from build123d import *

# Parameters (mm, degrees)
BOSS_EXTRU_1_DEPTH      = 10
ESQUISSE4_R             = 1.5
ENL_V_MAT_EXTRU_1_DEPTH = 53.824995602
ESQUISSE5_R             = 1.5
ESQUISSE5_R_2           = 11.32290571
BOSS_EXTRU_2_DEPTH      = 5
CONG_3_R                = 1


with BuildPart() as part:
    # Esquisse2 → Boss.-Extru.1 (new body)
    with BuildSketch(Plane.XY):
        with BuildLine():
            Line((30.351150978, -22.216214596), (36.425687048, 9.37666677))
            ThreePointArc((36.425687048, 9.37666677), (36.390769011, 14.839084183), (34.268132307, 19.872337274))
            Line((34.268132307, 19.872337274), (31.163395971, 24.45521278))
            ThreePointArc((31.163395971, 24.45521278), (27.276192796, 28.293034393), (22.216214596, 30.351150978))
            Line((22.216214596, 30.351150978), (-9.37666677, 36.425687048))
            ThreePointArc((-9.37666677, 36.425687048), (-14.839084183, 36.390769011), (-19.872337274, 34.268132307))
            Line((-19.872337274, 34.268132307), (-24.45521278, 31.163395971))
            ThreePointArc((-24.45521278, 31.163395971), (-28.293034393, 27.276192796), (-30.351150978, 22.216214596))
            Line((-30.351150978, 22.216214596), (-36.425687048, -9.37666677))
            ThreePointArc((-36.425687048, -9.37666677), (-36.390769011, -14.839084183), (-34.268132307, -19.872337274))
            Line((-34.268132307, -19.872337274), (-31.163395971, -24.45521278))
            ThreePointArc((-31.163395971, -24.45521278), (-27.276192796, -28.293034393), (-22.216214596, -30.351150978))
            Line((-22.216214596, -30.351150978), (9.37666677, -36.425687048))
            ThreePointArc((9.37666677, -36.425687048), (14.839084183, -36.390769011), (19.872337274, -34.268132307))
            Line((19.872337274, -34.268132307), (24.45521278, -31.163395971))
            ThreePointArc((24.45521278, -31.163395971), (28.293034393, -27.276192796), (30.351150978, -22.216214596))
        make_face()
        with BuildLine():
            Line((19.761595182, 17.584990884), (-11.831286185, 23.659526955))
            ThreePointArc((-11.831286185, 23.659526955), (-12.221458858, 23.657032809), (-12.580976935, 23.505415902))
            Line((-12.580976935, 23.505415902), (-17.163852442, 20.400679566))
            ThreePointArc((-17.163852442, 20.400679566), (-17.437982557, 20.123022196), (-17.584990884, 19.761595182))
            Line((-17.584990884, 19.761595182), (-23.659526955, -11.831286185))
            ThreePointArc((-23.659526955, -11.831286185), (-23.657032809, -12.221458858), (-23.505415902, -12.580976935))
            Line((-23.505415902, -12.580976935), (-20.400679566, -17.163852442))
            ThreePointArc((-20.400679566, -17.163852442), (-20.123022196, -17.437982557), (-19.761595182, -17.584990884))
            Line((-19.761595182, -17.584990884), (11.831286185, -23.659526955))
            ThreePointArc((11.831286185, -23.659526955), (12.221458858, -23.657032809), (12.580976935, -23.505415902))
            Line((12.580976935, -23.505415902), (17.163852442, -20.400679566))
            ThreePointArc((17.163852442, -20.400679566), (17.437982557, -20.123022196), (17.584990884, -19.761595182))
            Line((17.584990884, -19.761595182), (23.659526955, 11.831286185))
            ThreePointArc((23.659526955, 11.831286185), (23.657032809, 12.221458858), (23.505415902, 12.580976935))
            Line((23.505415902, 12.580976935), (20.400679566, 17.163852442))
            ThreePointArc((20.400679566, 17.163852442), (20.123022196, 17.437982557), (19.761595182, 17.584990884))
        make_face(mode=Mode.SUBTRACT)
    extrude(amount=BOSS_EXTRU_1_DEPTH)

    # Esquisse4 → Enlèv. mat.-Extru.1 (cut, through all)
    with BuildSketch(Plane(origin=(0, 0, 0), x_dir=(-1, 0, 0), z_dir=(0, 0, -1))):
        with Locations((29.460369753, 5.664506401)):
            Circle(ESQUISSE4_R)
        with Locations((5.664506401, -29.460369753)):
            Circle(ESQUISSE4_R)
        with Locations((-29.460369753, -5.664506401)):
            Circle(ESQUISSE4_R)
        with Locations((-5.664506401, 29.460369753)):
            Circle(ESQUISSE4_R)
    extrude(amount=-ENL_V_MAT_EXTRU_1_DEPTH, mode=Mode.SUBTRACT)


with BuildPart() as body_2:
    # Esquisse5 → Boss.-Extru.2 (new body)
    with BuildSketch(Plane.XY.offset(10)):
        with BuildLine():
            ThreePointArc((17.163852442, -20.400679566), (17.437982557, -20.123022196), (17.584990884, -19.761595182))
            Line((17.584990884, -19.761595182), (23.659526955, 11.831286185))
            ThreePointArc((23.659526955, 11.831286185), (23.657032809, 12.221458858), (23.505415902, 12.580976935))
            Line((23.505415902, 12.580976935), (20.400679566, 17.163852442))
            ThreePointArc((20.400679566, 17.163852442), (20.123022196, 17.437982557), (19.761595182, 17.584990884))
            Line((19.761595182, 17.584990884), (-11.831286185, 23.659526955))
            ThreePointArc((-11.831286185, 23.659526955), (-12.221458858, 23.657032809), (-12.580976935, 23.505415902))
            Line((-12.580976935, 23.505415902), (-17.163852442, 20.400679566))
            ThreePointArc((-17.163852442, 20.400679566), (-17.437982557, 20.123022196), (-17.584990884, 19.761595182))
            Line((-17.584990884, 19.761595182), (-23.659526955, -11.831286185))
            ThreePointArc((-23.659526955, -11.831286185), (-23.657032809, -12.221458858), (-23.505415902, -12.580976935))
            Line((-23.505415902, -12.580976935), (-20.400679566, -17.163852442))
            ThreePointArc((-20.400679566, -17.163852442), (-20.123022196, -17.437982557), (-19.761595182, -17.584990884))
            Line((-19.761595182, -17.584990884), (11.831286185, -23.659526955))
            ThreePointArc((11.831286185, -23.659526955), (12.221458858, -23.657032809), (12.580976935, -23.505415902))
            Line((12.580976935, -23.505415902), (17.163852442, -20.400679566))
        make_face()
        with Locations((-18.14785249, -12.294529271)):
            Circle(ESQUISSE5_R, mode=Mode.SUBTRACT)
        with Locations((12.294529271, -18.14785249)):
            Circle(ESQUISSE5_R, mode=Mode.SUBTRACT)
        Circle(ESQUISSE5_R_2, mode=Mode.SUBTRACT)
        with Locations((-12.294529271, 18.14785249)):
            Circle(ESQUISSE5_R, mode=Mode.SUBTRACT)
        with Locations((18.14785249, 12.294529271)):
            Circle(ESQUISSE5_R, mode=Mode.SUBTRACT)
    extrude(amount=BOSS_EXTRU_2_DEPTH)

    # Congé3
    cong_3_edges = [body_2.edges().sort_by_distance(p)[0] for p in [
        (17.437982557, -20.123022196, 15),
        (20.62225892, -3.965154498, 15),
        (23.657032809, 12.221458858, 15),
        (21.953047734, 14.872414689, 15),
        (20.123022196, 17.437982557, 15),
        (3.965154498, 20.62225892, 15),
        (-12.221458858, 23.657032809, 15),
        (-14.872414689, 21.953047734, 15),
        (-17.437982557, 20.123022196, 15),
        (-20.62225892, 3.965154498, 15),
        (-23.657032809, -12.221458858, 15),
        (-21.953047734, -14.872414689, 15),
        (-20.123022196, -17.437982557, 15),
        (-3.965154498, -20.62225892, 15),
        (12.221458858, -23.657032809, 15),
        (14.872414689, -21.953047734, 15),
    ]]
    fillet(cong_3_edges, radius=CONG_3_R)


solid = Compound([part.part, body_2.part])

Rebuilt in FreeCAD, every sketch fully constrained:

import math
import FreeCAD as App
import Part
import Sketcher
Q = App.Units.Quantity


def edges_at(feature, points):
    """Names of the edges that pass closest to the given points."""
    edges = feature.Shape.Edges
    near = lambda p: min(range(len(edges)), key=lambda i: edges[i].distToShape(Part.Vertex(*p))[0])
    return sorted({f"Edge{near(p) + 1}" for p in points})

doc = App.newDocument("Part")
body = doc.addObject("PartDesign::Body", "Body")

# Sketch on XY plane
sketch1 = doc.addObject("Sketcher::SketchObject", "Sketch")
body.addObject(sketch1)
sketch1.AttachmentSupport = (doc.XY_Plane, [""])
sketch1.MapMode = "FlatFace"
sketch1.addGeometry(Part.LineSegment(App.Vector(30.4, -22.2, 0), App.Vector(36.4, 9.4, 0)), False)
sketch1.addGeometry(Part.ArcOfCircle(Part.Circle(App.Vector(22.7, 12, 0), App.Vector(0, 0, 1), 14), math.radians(-11), math.radians(34)), False)
sketch1.addGeometry(Part.LineSegment(App.Vector(34.3, 19.9, 0), App.Vector(31.2, 24.5, 0)), False)
sketch1.addGeometry(Part.ArcOfCircle(Part.Circle(App.Vector(19.6, 16.6, 0), App.Vector(0, 0, 1), 14), math.radians(34), math.radians(79)), False)
sketch1.addGeometry(Part.LineSegment(App.Vector(22.2, 30.4, 0), App.Vector(-9.4, 36.4, 0)), False)
sketch1.addGeometry(Part.ArcOfCircle(Part.Circle(App.Vector(-12, 22.7, 0), App.Vector(0, 0, 1), 14), math.radians(79), math.radians(124)), False)
sketch1.addGeometry(Part.LineSegment(App.Vector(-19.9, 34.3, 0), App.Vector(-24.5, 31.2, 0)), False)
sketch1.addGeometry(Part.ArcOfCircle(Part.Circle(App.Vector(-16.6, 19.6, 0), App.Vector(0, 0, 1), 14), math.radians(124), math.radians(169)), False)
sketch1.addGeometry(Part.LineSegment(App.Vector(-30.4, 22.2, 0), App.Vector(-36.4, -9.4, 0)), False)
sketch1.addGeometry(Part.ArcOfCircle(Part.Circle(App.Vector(-22.7, -12, 0), App.Vector(0, 0, 1), 14), math.radians(169), math.radians(214)), False)
sketch1.addGeometry(Part.LineSegment(App.Vector(-34.3, -19.9, 0), App.Vector(-31.2, -24.5, 0)), False)
sketch1.addGeometry(Part.ArcOfCircle(Part.Circle(App.Vector(-19.6, -16.6, 0), App.Vector(0, 0, 1), 14), math.radians(-146), math.radians(-101)), False)
sketch1.addGeometry(Part.LineSegment(App.Vector(-22.2, -30.4, 0), App.Vector(9.4, -36.4, 0)), False)
sketch1.addGeometry(Part.ArcOfCircle(Part.Circle(App.Vector(12, -22.7, 0), App.Vector(0, 0, 1), 14), math.radians(-101), math.radians(-56)), False)
sketch1.addGeometry(Part.LineSegment(App.Vector(19.9, -34.3, 0), App.Vector(24.5, -31.2, 0)), False)
sketch1.addGeometry(Part.ArcOfCircle(Part.Circle(App.Vector(16.6, -19.6, 0), App.Vector(0, 0, 1), 14), math.radians(-56), math.radians(-11)), False)
sketch1.addGeometry(Part.LineSegment(App.Vector(-11.8, 23.7, 0), App.Vector(19.8, 17.6, 0)), False)
sketch1.addGeometry(Part.ArcOfCircle(Part.Circle(App.Vector(19.6, 16.6, 0), App.Vector(0, 0, 1), 1), math.radians(34), math.radians(79)), False)
sketch1.addGeometry(Part.LineSegment(App.Vector(20.4, 17.2, 0), App.Vector(23.5, 12.6, 0)), False)
sketch1.addGeometry(Part.ArcOfCircle(Part.Circle(App.Vector(22.7, 12, 0), App.Vector(0, 0, 1), 1), math.radians(-11), math.radians(34)), False)
sketch1.addGeometry(Part.LineSegment(App.Vector(23.7, 11.8, 0), App.Vector(17.6, -19.8, 0)), False)
sketch1.addGeometry(Part.ArcOfCircle(Part.Circle(App.Vector(16.6, -19.6, 0), App.Vector(0, 0, 1), 1), math.radians(-56), math.radians(-11)), False)
sketch1.addGeometry(Part.LineSegment(App.Vector(17.2, -20.4, 0), App.Vector(12.6, -23.5, 0)), False)
sketch1.addGeometry(Part.ArcOfCircle(Part.Circle(App.Vector(12, -22.7, 0), App.Vector(0, 0, 1), 1), math.radians(-101), math.radians(-56)), False)
sketch1.addGeometry(Part.LineSegment(App.Vector(11.8, -23.7, 0), App.Vector(-19.8, -17.6, 0)), False)
sketch1.addGeometry(Part.ArcOfCircle(Part.Circle(App.Vector(-19.6, -16.6, 0), App.Vector(0, 0, 1), 1), math.radians(-146), math.radians(-101)), False)
sketch1.addGeometry(Part.LineSegment(App.Vector(-20.4, -17.2, 0), App.Vector(-23.5, -12.6, 0)), False)
sketch1.addGeometry(Part.ArcOfCircle(Part.Circle(App.Vector(-22.7, -12, 0), App.Vector(0, 0, 1), 1), math.radians(169), math.radians(214)), False)
sketch1.addGeometry(Part.LineSegment(App.Vector(-23.7, -11.8, 0), App.Vector(-17.6, 19.8, 0)), False)
sketch1.addGeometry(Part.ArcOfCircle(Part.Circle(App.Vector(-16.6, 19.6, 0), App.Vector(0, 0, 1), 1), math.radians(124), math.radians(169)), False)
sketch1.addGeometry(Part.LineSegment(App.Vector(-17.2, 20.4, 0), App.Vector(-12.6, 23.5, 0)), False)
sketch1.addGeometry(Part.ArcOfCircle(Part.Circle(App.Vector(-12, 22.7, 0), App.Vector(0, 0, 1), 1), math.radians(79), math.radians(124)), False)
sketch1.addConstraint(Sketcher.Constraint("Tangent", 0, 2, 1, 1))
sketch1.addConstraint(Sketcher.Constraint("Tangent", 1, 2, 2, 1))
sketch1.addConstraint(Sketcher.Constraint("Tangent", 2, 2, 3, 1))
sketch1.addConstraint(Sketcher.Constraint("Tangent", 3, 2, 4, 1))
sketch1.addConstraint(Sketcher.Constraint("Tangent", 4, 2, 5, 1))
sketch1.addConstraint(Sketcher.Constraint("Tangent", 5, 2, 6, 1))
sketch1.addConstraint(Sketcher.Constraint("Tangent", 6, 2, 7, 1))
sketch1.addConstraint(Sketcher.Constraint("Tangent", 7, 2, 8, 1))
sketch1.addConstraint(Sketcher.Constraint("Tangent", 8, 2, 9, 1))
sketch1.addConstraint(Sketcher.Constraint("Tangent", 9, 2, 10, 1))
sketch1.addConstraint(Sketcher.Constraint("Tangent", 10, 2, 11, 1))
sketch1.addConstraint(Sketcher.Constraint("Tangent", 11, 2, 12, 1))
sketch1.addConstraint(Sketcher.Constraint("Tangent", 12, 2, 13, 1))
sketch1.addConstraint(Sketcher.Constraint("Tangent", 13, 2, 14, 1))
sketch1.addConstraint(Sketcher.Constraint("Tangent", 14, 2, 15, 1))
sketch1.addConstraint(Sketcher.Constraint("Tangent", 15, 2, 0, 1))
sketch1.addConstraint(Sketcher.Constraint("Tangent", 16, 2, 17, 2))
sketch1.addConstraint(Sketcher.Constraint("Tangent", 17, 1, 18, 1))
sketch1.addConstraint(Sketcher.Constraint("Tangent", 18, 2, 19, 2))
sketch1.addConstraint(Sketcher.Constraint("Tangent", 19, 1, 20, 1))
sketch1.addConstraint(Sketcher.Constraint("Tangent", 20, 2, 21, 2))
sketch1.addConstraint(Sketcher.Constraint("Tangent", 21, 1, 22, 1))
sketch1.addConstraint(Sketcher.Constraint("Tangent", 22, 2, 23, 2))
sketch1.addConstraint(Sketcher.Constraint("Tangent", 23, 1, 24, 1))
sketch1.addConstraint(Sketcher.Constraint("Tangent", 24, 2, 25, 2))
sketch1.addConstraint(Sketcher.Constraint("Tangent", 25, 1, 26, 1))
sketch1.addConstraint(Sketcher.Constraint("Tangent", 26, 2, 27, 2))
sketch1.addConstraint(Sketcher.Constraint("Tangent", 27, 1, 28, 1))
sketch1.addConstraint(Sketcher.Constraint("Tangent", 28, 2, 29, 2))
sketch1.addConstraint(Sketcher.Constraint("Tangent", 29, 1, 30, 1))
sketch1.addConstraint(Sketcher.Constraint("Tangent", 30, 2, 31, 2))
sketch1.addConstraint(Sketcher.Constraint("Tangent", 31, 1, 16, 1))
sketch1.addConstraint(Sketcher.Constraint("Coincident", 17, 3, 3, 3))
sketch1.addConstraint(Sketcher.Constraint("Coincident", 19, 3, 1, 3))
sketch1.addConstraint(Sketcher.Constraint("Coincident", 21, 3, 15, 3))
sketch1.addConstraint(Sketcher.Constraint("Coincident", 23, 3, 13, 3))
sketch1.addConstraint(Sketcher.Constraint("Coincident", 25, 3, 11, 3))
sketch1.addConstraint(Sketcher.Constraint("Coincident", 27, 3, 9, 3))
sketch1.addConstraint(Sketcher.Constraint("Coincident", 29, 3, 7, 3))
sketch1.addConstraint(Sketcher.Constraint("Coincident", 31, 3, 5, 3))
sketch1.addConstraint(Sketcher.Constraint("Equal", 1, 3))
sketch1.addConstraint(Sketcher.Constraint("Equal", 3, 5))
sketch1.addConstraint(Sketcher.Constraint("Equal", 5, 7))
sketch1.addConstraint(Sketcher.Constraint("Equal", 7, 9))
sketch1.addConstraint(Sketcher.Constraint("Equal", 9, 11))
sketch1.addConstraint(Sketcher.Constraint("Equal", 11, 13))
sketch1.addConstraint(Sketcher.Constraint("Equal", 13, 15))
sketch1.addConstraint(Sketcher.Constraint("Equal", 17, 19))
sketch1.addConstraint(Sketcher.Constraint("Equal", 19, 21))
sketch1.addConstraint(Sketcher.Constraint("Equal", 21, 23))
sketch1.addConstraint(Sketcher.Constraint("Equal", 23, 25))
sketch1.addConstraint(Sketcher.Constraint("Equal", 25, 27))
sketch1.addConstraint(Sketcher.Constraint("Equal", 27, 29))
sketch1.addConstraint(Sketcher.Constraint("Equal", 29, 31))
sketch1.addConstraint(Sketcher.Constraint("Symmetric", 1, 3, 9, 3, -1, 1))
sketch1.addConstraint(Sketcher.Constraint("Symmetric", 3, 3, 11, 3, -1, 1))
sketch1.addConstraint(Sketcher.Constraint("Symmetric", 5, 3, 13, 3, -1, 1))
sketch1.addConstraint(Sketcher.Constraint("Symmetric", 7, 3, 15, 3, -1, 1))
sketch1.addConstraint(Sketcher.Constraint("Perpendicular", 0, 4))
sketch1.addConstraint(Sketcher.Constraint("Perpendicular", 2, 6))
sketch1.addConstraint(Sketcher.Constraint("Equal", 0, 4))
sketch1.addConstraint(Sketcher.Constraint("Equal", 2, 6))
sketch1.addConstraint(Sketcher.Constraint("Radius", 1, Q("14 mm")))
sketch1.addConstraint(Sketcher.Constraint("Radius", 17, Q("1 mm")))
sketch1.addConstraint(Sketcher.Constraint("DistanceY", 18, 2, 17, 3, Q("4.022002 mm")))
sketch1.addConstraint(Sketcher.Constraint("DistanceY", 3, 3, 7, 3, Q("2.9698 mm")))
sketch1.addConstraint(Sketcher.Constraint("DistanceX", 3, 2, 1, 3, Q("0.4613 mm")))
sketch1.addConstraint(Sketcher.Constraint("DistanceX", 17, 3, 17, 1, Q("0.827901 mm")))
pad1 = doc.addObject("PartDesign::Pad", "Pad")
body.addObject(pad1)
pad1.Profile = sketch1
pad1.Length = 10

# Sketch on XY plane
sketch2 = doc.addObject("Sketcher::SketchObject", "Sketch001")
body.addObject(sketch2)
sketch2.AttachmentSupport = (doc.XY_Plane, [""])
sketch2.MapMode = "FlatFace"
sketch2.addGeometry(Part.Circle(App.Vector(-29.5, 5.7, 0), App.Vector(0, 0, 1), 1.5), False)
sketch2.addGeometry(Part.Circle(App.Vector(-5.7, -29.5, 0), App.Vector(0, 0, 1), 1.5), False)
sketch2.addGeometry(Part.Circle(App.Vector(29.5, -5.7, 0), App.Vector(0, 0, 1), 1.5), False)
sketch2.addGeometry(Part.Circle(App.Vector(5.7, 29.5, 0), App.Vector(0, 0, 1), 1.5), False)
sketch2.addConstraint(Sketcher.Constraint("Equal", 0, 1))
sketch2.addConstraint(Sketcher.Constraint("Equal", 1, 2))
sketch2.addConstraint(Sketcher.Constraint("Equal", 2, 3))
sketch2.addConstraint(Sketcher.Constraint("Symmetric", 0, 3, 2, 3, -1, 1))
sketch2.addConstraint(Sketcher.Constraint("Symmetric", 1, 3, 3, 3, -1, 1))
sketch2.addConstraint(Sketcher.Constraint("Diameter", 0, Q("3 mm")))
sketch2.addConstraint(Sketcher.Constraint("DistanceX", 0, 3, -1, 1, Q("29.46037 mm")))
sketch2.addConstraint(Sketcher.Constraint("DistanceY", 1, 3, -1, 1, Q("29.46037 mm")))
sketch2.addConstraint(Sketcher.Constraint("DistanceY", -1, 1, 0, 3, Q("5.664506 mm")))
sketch2.addConstraint(Sketcher.Constraint("DistanceX", 1, 3, -1, 1, Q("5.664506 mm")))
pocket1 = doc.addObject("PartDesign::Pocket", "Pocket")
body.addObject(pocket1)
pocket1.Profile = sketch2
pocket1.Type = "ThroughAll"
pocket1.Reversed = True
body2 = doc.addObject("PartDesign::Body", "Body001")

# Sketch on XY plane
sketch3 = doc.addObject("Sketcher::SketchObject", "Sketch002")
body2.addObject(sketch3)
sketch3.AttachmentSupport = (doc.getObject("XY_Plane001"), [""])
sketch3.MapMode = "FlatFace"
sketch3.AttachmentOffset = App.Placement(App.Vector(0, 0, 10), App.Rotation())
sketch3.addGeometry(Part.ArcOfCircle(Part.Circle(App.Vector(16.6, -19.6, 0), App.Vector(0, 0, 1), 1), math.radians(-56), math.radians(-11)), False)
sketch3.addGeometry(Part.LineSegment(App.Vector(17.6, -19.8, 0), App.Vector(23.7, 11.8, 0)), False)
sketch3.addGeometry(Part.ArcOfCircle(Part.Circle(App.Vector(22.7, 12, 0), App.Vector(0, 0, 1), 1), math.radians(-11), math.radians(34)), False)
sketch3.addGeometry(Part.LineSegment(App.Vector(23.5, 12.6, 0), App.Vector(20.4, 17.2, 0)), False)
sketch3.addGeometry(Part.ArcOfCircle(Part.Circle(App.Vector(19.6, 16.6, 0), App.Vector(0, 0, 1), 1), math.radians(34), math.radians(79)), False)
sketch3.addGeometry(Part.LineSegment(App.Vector(19.8, 17.6, 0), App.Vector(-11.8, 23.7, 0)), False)
sketch3.addGeometry(Part.ArcOfCircle(Part.Circle(App.Vector(-12, 22.7, 0), App.Vector(0, 0, 1), 1), math.radians(79), math.radians(124)), False)
sketch3.addGeometry(Part.LineSegment(App.Vector(-12.6, 23.5, 0), App.Vector(-17.2, 20.4, 0)), False)
sketch3.addGeometry(Part.ArcOfCircle(Part.Circle(App.Vector(-16.6, 19.6, 0), App.Vector(0, 0, 1), 1), math.radians(124), math.radians(169)), False)
sketch3.addGeometry(Part.LineSegment(App.Vector(-17.6, 19.8, 0), App.Vector(-23.7, -11.8, 0)), False)
sketch3.addGeometry(Part.ArcOfCircle(Part.Circle(App.Vector(-22.7, -12, 0), App.Vector(0, 0, 1), 1), math.radians(169), math.radians(214)), False)
sketch3.addGeometry(Part.LineSegment(App.Vector(-23.5, -12.6, 0), App.Vector(-20.4, -17.2, 0)), False)
sketch3.addGeometry(Part.ArcOfCircle(Part.Circle(App.Vector(-19.6, -16.6, 0), App.Vector(0, 0, 1), 1), math.radians(-146), math.radians(-101)), False)
sketch3.addGeometry(Part.LineSegment(App.Vector(-19.8, -17.6, 0), App.Vector(11.8, -23.7, 0)), False)
sketch3.addGeometry(Part.ArcOfCircle(Part.Circle(App.Vector(12, -22.7, 0), App.Vector(0, 0, 1), 1), math.radians(-101), math.radians(-56)), False)
sketch3.addGeometry(Part.LineSegment(App.Vector(12.6, -23.5, 0), App.Vector(17.2, -20.4, 0)), False)
sketch3.addGeometry(Part.Circle(App.Vector(-18.1, -12.3, 0), App.Vector(0, 0, 1), 1.5), False)
sketch3.addGeometry(Part.Circle(App.Vector(0, 0, 0), App.Vector(0, 0, 1), 11.3), False)
sketch3.addGeometry(Part.Circle(App.Vector(12.3, -18.1, 0), App.Vector(0, 0, 1), 1.5), False)
sketch3.addGeometry(Part.Circle(App.Vector(-12.3, 18.1, 0), App.Vector(0, 0, 1), 1.5), False)
sketch3.addGeometry(Part.Circle(App.Vector(18.1, 12.3, 0), App.Vector(0, 0, 1), 1.5), False)
sketch3.addConstraint(Sketcher.Constraint("Tangent", 0, 2, 1, 1))
sketch3.addConstraint(Sketcher.Constraint("Tangent", 1, 2, 2, 1))
sketch3.addConstraint(Sketcher.Constraint("Tangent", 2, 2, 3, 1))
sketch3.addConstraint(Sketcher.Constraint("Tangent", 3, 2, 4, 1))
sketch3.addConstraint(Sketcher.Constraint("Tangent", 4, 2, 5, 1))
sketch3.addConstraint(Sketcher.Constraint("Tangent", 5, 2, 6, 1))
sketch3.addConstraint(Sketcher.Constraint("Tangent", 6, 2, 7, 1))
sketch3.addConstraint(Sketcher.Constraint("Tangent", 7, 2, 8, 1))
sketch3.addConstraint(Sketcher.Constraint("Tangent", 8, 2, 9, 1))
sketch3.addConstraint(Sketcher.Constraint("Tangent", 9, 2, 10, 1))
sketch3.addConstraint(Sketcher.Constraint("Tangent", 10, 2, 11, 1))
sketch3.addConstraint(Sketcher.Constraint("Tangent", 11, 2, 12, 1))
sketch3.addConstraint(Sketcher.Constraint("Tangent", 12, 2, 13, 1))
sketch3.addConstraint(Sketcher.Constraint("Tangent", 13, 2, 14, 1))
sketch3.addConstraint(Sketcher.Constraint("Tangent", 14, 2, 15, 1))
sketch3.addConstraint(Sketcher.Constraint("Tangent", 15, 2, 0, 1))
sketch3.addConstraint(Sketcher.Constraint("Coincident", 17, 3, -1, 1))
sketch3.addConstraint(Sketcher.Constraint("Equal", 0, 2))
sketch3.addConstraint(Sketcher.Constraint("Equal", 2, 4))
sketch3.addConstraint(Sketcher.Constraint("Equal", 4, 6))
sketch3.addConstraint(Sketcher.Constraint("Equal", 6, 8))
sketch3.addConstraint(Sketcher.Constraint("Equal", 8, 10))
sketch3.addConstraint(Sketcher.Constraint("Equal", 10, 12))
sketch3.addConstraint(Sketcher.Constraint("Equal", 12, 14))
sketch3.addConstraint(Sketcher.Constraint("Equal", 16, 18))
sketch3.addConstraint(Sketcher.Constraint("Equal", 18, 19))
sketch3.addConstraint(Sketcher.Constraint("Equal", 19, 20))
sketch3.addConstraint(Sketcher.Constraint("Symmetric", 0, 3, 8, 3, -1, 1))
sketch3.addConstraint(Sketcher.Constraint("Symmetric", 2, 3, 10, 3, -1, 1))
sketch3.addConstraint(Sketcher.Constraint("Symmetric", 4, 3, 12, 3, -1, 1))
sketch3.addConstraint(Sketcher.Constraint("Symmetric", 6, 3, 14, 3, -1, 1))
sketch3.addConstraint(Sketcher.Constraint("Symmetric", 18, 3, 19, 3, -1, 1))
sketch3.addConstraint(Sketcher.Constraint("Symmetric", 16, 3, 20, 3, -1, 1))
sketch3.addConstraint(Sketcher.Constraint("Perpendicular", 1, 5))
sketch3.addConstraint(Sketcher.Constraint("Perpendicular", 3, 7))
sketch3.addConstraint(Sketcher.Constraint("Equal", 1, 5))
sketch3.addConstraint(Sketcher.Constraint("Equal", 3, 7))
sketch3.addConstraint(Sketcher.Constraint("Diameter", 16, Q("3 mm")))
sketch3.addConstraint(Sketcher.Constraint("Radius", 0, Q("1 mm")))
sketch3.addConstraint(Sketcher.Constraint("Diameter", 17, Q("22.645811 mm")))
sketch3.addConstraint(Sketcher.Constraint("DistanceY", 2, 2, 4, 3, Q("4.022002 mm")))
sketch3.addConstraint(Sketcher.Constraint("DistanceX", 0, 3, 4, 3, Q("2.9698 mm")))
sketch3.addConstraint(Sketcher.Constraint("DistanceX", 2, 3, 2, 2, Q("0.827901 mm")))
sketch3.addConstraint(Sketcher.Constraint("DistanceX", -1, 1, 0, 3, Q("16.602979 mm")))
sketch3.addConstraint(Sketcher.Constraint("DistanceY", 16, 3, -1, 1, Q("12.294529 mm")))
sketch3.addConstraint(Sketcher.Constraint("DistanceX", -1, 1, 18, 3, Q("12.294529 mm")))
sketch3.addConstraint(Sketcher.Constraint("DistanceX", 16, 3, 6, 3, Q("6.127749 mm")))
sketch3.addConstraint(Sketcher.Constraint("DistanceY", 16, 3, 19, 3, Q("30.442382 mm")))
pad2 = doc.addObject("PartDesign::Pad", "Pad001")
body2.addObject(pad2)
pad2.Profile = sketch3
pad2.Length = 5
doc.recompute()

fillet = doc.addObject("PartDesign::Fillet", "Fillet")
body2.addObject(fillet)
fillet.Base = (pad2, edges_at(pad2, [
    (17.438, -20.123, 15),
    (20.622, -3.965, 15),
    (23.657, 12.221, 15),
    (21.953, 14.872, 15),
    (20.123, 17.438, 15),
    (3.965, 20.622, 15),
    (-12.221, 23.657, 15),
    (-14.872, 21.953, 15),
    (-17.438, 20.123, 15),
    (-20.622, 3.965, 15),
    (-23.657, -12.221, 15),
    (-21.953, -14.872, 15),
    (-20.123, -17.438, 15),
    (-3.965, -20.622, 15),
    (12.221, -23.657, 15),
    (14.872, -21.953, 15),
]))
fillet.Radius = 1

doc.recompute()
